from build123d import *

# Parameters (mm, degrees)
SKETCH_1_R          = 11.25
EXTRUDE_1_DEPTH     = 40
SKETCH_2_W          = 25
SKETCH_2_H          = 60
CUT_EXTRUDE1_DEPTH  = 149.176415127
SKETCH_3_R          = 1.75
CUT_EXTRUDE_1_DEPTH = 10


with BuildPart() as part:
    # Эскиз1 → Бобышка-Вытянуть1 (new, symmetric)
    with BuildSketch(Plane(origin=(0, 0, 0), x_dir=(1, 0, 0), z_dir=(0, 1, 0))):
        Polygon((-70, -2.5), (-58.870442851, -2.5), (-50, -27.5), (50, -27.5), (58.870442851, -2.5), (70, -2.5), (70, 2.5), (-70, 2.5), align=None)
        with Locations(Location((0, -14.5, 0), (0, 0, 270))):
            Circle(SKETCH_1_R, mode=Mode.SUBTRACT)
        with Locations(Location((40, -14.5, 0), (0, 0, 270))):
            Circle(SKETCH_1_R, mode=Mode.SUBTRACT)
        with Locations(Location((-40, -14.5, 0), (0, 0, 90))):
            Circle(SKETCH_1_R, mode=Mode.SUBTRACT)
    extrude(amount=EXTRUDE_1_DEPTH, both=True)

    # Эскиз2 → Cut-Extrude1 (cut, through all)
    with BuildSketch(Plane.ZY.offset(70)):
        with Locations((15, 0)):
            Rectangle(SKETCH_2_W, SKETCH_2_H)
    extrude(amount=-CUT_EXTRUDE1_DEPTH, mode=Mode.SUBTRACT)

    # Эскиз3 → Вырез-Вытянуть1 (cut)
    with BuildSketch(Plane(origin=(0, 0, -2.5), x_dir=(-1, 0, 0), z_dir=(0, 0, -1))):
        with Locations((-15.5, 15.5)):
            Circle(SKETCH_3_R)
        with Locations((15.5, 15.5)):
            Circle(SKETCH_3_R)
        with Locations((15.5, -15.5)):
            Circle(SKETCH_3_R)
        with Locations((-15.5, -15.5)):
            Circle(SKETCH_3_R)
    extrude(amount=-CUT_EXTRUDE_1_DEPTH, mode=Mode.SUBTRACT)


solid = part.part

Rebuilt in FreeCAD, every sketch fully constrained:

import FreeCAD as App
import Part
import Sketcher
from FreeCAD import Vector


def add_polygon(sketch, points):
    """Adds a closed chain of lines whose ends are joined by coincident constraints."""
    first, n = sketch.GeometryCount, len(points)
    for a, b in zip(points, points[1:] + points[:1]):
        sketch.addGeometry(Part.LineSegment(App.Vector(*a, 0), App.Vector(*b, 0)), False)
    for i in range(n):
        sketch.addConstraint(Sketcher.Constraint("Coincident", first + i, 2, first + (i + 1) % n, 1))

doc = App.newDocument("Part")
params = doc.addObject("Spreadsheet::Sheet", "Params")
for row, (alias, value) in enumerate([
    ("sketch1_diameter", "22.5 mm"),
    ("sketch1_width", "100 mm"),
    ("sketch1_width2", "140 mm"),
    ("sketch1_height", "5 mm"),
    ("pad1_length", "80 mm"),
    ("sketch2_width", "60 mm"),
    ("sketch2_height", "25 mm"),
    ("sketch3_diameter", "3.5 mm"),
    ("pocket2_length", "10 mm"),
], start=1):
    params.set(f"A{row}", alias)
    params.set(f"B{row}", "=" + value)
    params.setAlias(f"B{row}", alias)

body = doc.addObject("PartDesign::Body", "Body")

# Sketch on XZ plane
sketch1 = body.newObject("Sketcher::SketchObject", "Sketch")
sketch1.AttachmentSupport = (doc.getObject("XZ_Plane"), [""])
sketch1.MapMode = "FlatFace"
add_polygon(sketch1, [(-70, 2), (-59, 2), (-50, 28), (50, 28), (59, 2), (70, 2), (70, -2), (-70, -2)])  # lines 0-7
sketch1.addGeometry(Part.Circle(Vector(-40, 14, 0), Vector(0, 0, 1), 11), False)  # 8
sketch1.addGeometry(Part.Circle(Vector(0, 14, 0), Vector(0, 0, 1), 11), False)  # 9
sketch1.addGeometry(Part.Circle(Vector(40, 14, 0), Vector(0, 0, 1), 11), False)  # 10
sketch1.addConstraint([
    Sketcher.Constraint("Horizontal", 0),
    Sketcher.Constraint("Horizontal", 2),
    Sketcher.Constraint("Horizontal", 4),
    Sketcher.Constraint("Vertical", 5),
    Sketcher.Constraint("Horizontal", 6),
    Sketcher.Constraint("Vertical", 7),
    Sketcher.Constraint("Equal", 8, 9),
    Sketcher.Constraint("Equal", 9, 10),
    Sketcher.Constraint("Symmetric", 4, 2, 6, 2, -1, 1),
    Sketcher.Constraint("Symmetric", 8, 3, 10, 3, -2),
    Sketcher.Constraint("Symmetric", 0, 2, 3, 2, -2),
    Sketcher.Constraint("PointOnObject", 9, 3, -2),
    Sketcher.Constraint("Horizontal", 8, 3, 9, 3),
    Sketcher.Constraint("Equal", 1, 3),
    Sketcher.Constraint("Diameter", 8, 22.5),
    Sketcher.Constraint("DistanceX", 2, 1, 2, 2, 100.0),
    Sketcher.Constraint("DistanceX", 6, 2, 6, 1, 140.0),
    Sketcher.Constraint("DistanceY", 5, 2, 5, 1, 5.0),
    Sketcher.Constraint("DistanceX", 8, 3, -1, 1, 40.0),
    Sketcher.Constraint("DistanceY", 0, 2, 8, 3, 12.0),
    Sketcher.Constraint("DistanceY", 8, 3, 1, 2, 13.0),
    Sketcher.Constraint("DistanceX", 0, 1, 0, 2, 11.129557),
])
sketch1.setExpression("Constraints[22]", "Params.sketch1_diameter")
sketch1.setExpression("Constraints[23]", "Params.sketch1_width")
sketch1.setExpression("Constraints[24]", "Params.sketch1_width2")
sketch1.setExpression("Constraints[25]", "Params.sketch1_height")
pad1 = body.newObject("PartDesign::Pad", "Pad")
pad1.Profile = sketch1
pad1.setExpression("Length", "Params.pad1_length")
pad1.Midplane = True

# Sketch on YZ plane
sketch2 = body.newObject("Sketcher::SketchObject", "Sketch001")
sketch2.AttachmentSupport = (doc.getObject("YZ_Plane"), [""])
sketch2.MapMode = "FlatFace"
sketch2.AttachmentOffset = App.Placement(Vector(0, 0, -70), App.Rotation())
add_polygon(sketch2, [(30, 2), (-30, 2), (-30, 28), (30, 28)])  # lines 0-3
sketch2.addConstraint([
    Sketcher.Constraint("Horizontal", 0),
    Sketcher.Constraint("Vertical", 1),
    Sketcher.Constraint("Horizontal", 2),
    Sketcher.Constraint("Vertical", 3),
    Sketcher.Constraint("DistanceX", 0, 2, 0, 1, 60.0),
    Sketcher.Constraint("DistanceY", 1, 1, 1, 2, 25.0),
    Sketcher.Constraint("DistanceX", 0, 2, -1, 1, 30.0),
    Sketcher.Constraint("DistanceY", -1, 1, 0, 2, 2.5),
])
sketch2.setExpression("Constraints[8]", "Params.sketch2_width")
sketch2.setExpression("Constraints[9]", "Params.sketch2_height")
pocket1 = body.newObject("PartDesign::Pocket", "Pocket")
pocket1.Profile = sketch2
pocket1.Type = "ThroughAll"
pocket1.Reversed = True

# Sketch on XY plane
sketch3 = body.newObject("Sketcher::SketchObject", "Sketch002")
sketch3.AttachmentSupport = (doc.getObject("XY_Plane"), [""])
sketch3.MapMode = "FlatFace"
sketch3.AttachmentOffset = App.Placement(Vector(0, 0, -2.5), App.Rotation())
sketch3.addGeometry([
    Part.Circle(Vector(15.5, 15.5, 0), Vector(0, 0, 1), 1.8),
    Part.Circle(Vector(-15.5, 15.5, 0), Vector(0, 0, 1), 1.8),
    Part.Circle(Vector(-15.5, -15.5, 0), Vector(0, 0, 1), 1.8),
    Part.Circle(Vector(15.5, -15.5, 0), Vector(0, 0, 1), 1.8),
], False)
sketch3.addConstraint([
    Sketcher.Constraint("Equal", 0, 1),
    Sketcher.Constraint("Equal", 1, 2),
    Sketcher.Constraint("Equal", 2, 3),
    Sketcher.Constraint("Symmetric", 0, 3, 2, 3, -1, 1),
    Sketcher.Constraint("Symmetric", 1, 3, 3, 3, -1, 1),
    Sketcher.Constraint("Symmetric", 0, 3, 1, 3, -2),
    Sketcher.Constraint("Diameter", 0, 3.5),
    Sketcher.Constraint("DistanceX", 1, 3, 0, 3, 31.0),
    Sketcher.Constraint("DistanceY", 2, 3, 1, 3, 31.0),
])
sketch3.setExpression("Constraints[6]", "Params.sketch3_diameter")
pocket2 = body.newObject("PartDesign::Pocket", "Pocket001")
pocket2.Profile = sketch3
pocket2.setExpression("Length", "Params.pocket2_length")
pocket2.Reversed = True

doc.recompute()
